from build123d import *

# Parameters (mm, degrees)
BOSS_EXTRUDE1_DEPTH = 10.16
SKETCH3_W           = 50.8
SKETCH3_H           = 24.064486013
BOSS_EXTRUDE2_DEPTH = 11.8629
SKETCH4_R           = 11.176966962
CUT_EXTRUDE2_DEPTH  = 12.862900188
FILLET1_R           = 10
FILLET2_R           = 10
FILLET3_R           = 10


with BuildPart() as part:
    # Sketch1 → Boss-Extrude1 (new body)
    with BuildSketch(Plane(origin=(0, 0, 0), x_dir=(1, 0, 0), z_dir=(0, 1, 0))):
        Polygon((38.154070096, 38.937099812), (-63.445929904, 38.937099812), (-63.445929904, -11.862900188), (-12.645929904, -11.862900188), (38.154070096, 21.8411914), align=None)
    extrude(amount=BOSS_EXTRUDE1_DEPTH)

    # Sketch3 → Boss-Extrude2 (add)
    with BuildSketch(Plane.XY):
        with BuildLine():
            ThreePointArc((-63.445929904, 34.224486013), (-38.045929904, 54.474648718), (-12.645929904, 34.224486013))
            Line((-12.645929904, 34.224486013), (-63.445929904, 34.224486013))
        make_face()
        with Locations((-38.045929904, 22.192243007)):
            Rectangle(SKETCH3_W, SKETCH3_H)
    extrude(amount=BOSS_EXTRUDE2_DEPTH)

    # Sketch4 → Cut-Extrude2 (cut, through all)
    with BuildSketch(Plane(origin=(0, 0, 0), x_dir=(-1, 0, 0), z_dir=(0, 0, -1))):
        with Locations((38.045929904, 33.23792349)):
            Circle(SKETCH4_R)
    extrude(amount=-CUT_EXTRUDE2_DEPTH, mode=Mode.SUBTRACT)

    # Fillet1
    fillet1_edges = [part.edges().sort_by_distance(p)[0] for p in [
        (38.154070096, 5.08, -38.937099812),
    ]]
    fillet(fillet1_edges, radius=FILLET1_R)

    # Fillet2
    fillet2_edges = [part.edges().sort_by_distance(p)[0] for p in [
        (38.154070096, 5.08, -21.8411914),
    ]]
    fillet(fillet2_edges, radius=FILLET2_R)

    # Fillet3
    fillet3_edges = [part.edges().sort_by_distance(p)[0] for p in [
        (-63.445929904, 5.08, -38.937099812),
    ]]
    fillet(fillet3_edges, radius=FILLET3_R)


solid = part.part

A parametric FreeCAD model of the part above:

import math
import FreeCAD as App
import Part
import Sketcher
from FreeCAD import Vector
Q = App.Units.Quantity


def edges_at(feature, points):
    """Names of the edges that pass closest to the given points."""
    edges = feature.Shape.Edges
    near = lambda p: min(range(len(edges)), key=lambda i: edges[i].distToShape(Part.Vertex(*p))[0])
    return sorted({f"Edge{near(p) + 1}" for p in points})

doc = App.newDocument("Part")
body = doc.addObject("PartDesign::Body", "Body")

# Sketch on XZ plane
sketch1 = body.newObject("Sketcher::SketchObject", "Sketch")
sketch1.AttachmentSupport = (doc.getObject("XZ_Plane"), [""])
sketch1.MapMode = "FlatFace"
sketch1.addGeometry([
    Part.LineSegment(Vector(38, -39, 0), Vector(-63, -39, 0)),  # 0
    Part.LineSegment(Vector(-63, -39, 0), Vector(-63, 12, 0)),  # 1
    Part.LineSegment(Vector(-63, 12, 0), Vector(-13, 12, 0)),  # 2
    Part.LineSegment(Vector(-13, 12, 0), Vector(38, -22, 0)),  # 3
    Part.LineSegment(Vector(38, -22, 0), Vector(38, -39, 0)),  # 4
], False)
sketch1.addConstraint([
    Sketcher.Constraint("Coincident", 0, 2, 1, 1),
    Sketcher.Constraint("Coincident", 1, 2, 2, 1),
    Sketcher.Constraint("Coincident", 2, 2, 3, 1),
    Sketcher.Constraint("Coincident", 3, 2, 4, 1),
    Sketcher.Constraint("Coincident", 4, 2, 0, 1),
    Sketcher.Constraint("Horizontal", 0),
    Sketcher.Constraint("Vertical", 1),
    Sketcher.Constraint("Horizontal", 2),
    Sketcher.Constraint("Vertical", 4),
    Sketcher.Constraint("Equal", 2, 1),
    Sketcher.Constraint("DistanceX", 0, 2, 0, 1, Q("4 in")),
    Sketcher.Constraint("DistanceX", 2, 1, 2, 2, Q("2 in")),
    Sketcher.Constraint("DistanceY", 4, 2, 4, 1, 17.095908),
    Sketcher.Constraint("DistanceY", 0, 2, -1, 1, 38.9371),
    Sketcher.Constraint("DistanceX", 0, 2, -1, 1, 63.44593),
])
pad1 = body.newObject("PartDesign::Pad", "Pad")
pad1.Profile = sketch1
pad1.Length = Q("0.4 in")
pad1.Reversed = True

# Sketch on XY plane
sketch2 = body.newObject("Sketcher::SketchObject", "Sketch001")
sketch2.AttachmentSupport = (doc.getObject("XY_Plane"), [""])
sketch2.MapMode = "FlatFace"
sketch2.addGeometry([
    Part.ArcOfCircle(Part.Circle(Vector(-38, 28, 0), Vector(0, 0, 1), 26), math.radians(13), math.radians(167)),
    Part.LineSegment(Vector(-63, 34, 0), Vector(-63, 10, 0)),
    Part.LineSegment(Vector(-63, 10, 0), Vector(-13, 10, 0)),
    Part.LineSegment(Vector(-13, 10, 0), Vector(-13, 34, 0)),
], False)
sketch2.addConstraint([
    Sketcher.Constraint("Coincident", 0, 2, 1, 1),
    Sketcher.Constraint("Coincident", 1, 2, 2, 1),
    Sketcher.Constraint("Coincident", 2, 2, 3, 1),
    Sketcher.Constraint("Coincident", 3, 2, 0, 1),
    Sketcher.Constraint("Vertical", 1),
    Sketcher.Constraint("Horizontal", 2),
    Sketcher.Constraint("Vertical", 3),
    Sketcher.Constraint("Horizontal", 0, 2, 3, 2),
    Sketcher.Constraint("DistanceX", 2, 1, 2, 2, Q("2 in")),
    Sketcher.Constraint("DistanceY", -1, 1, 1, 2, Q("0.4 in")),
    Sketcher.Constraint("Radius", 0, 26.05483),
    Sketcher.Constraint("DistanceY", 1, 2, 1, 1, 24.064486),
    Sketcher.Constraint("DistanceX", 0, 3, -1, 1, 38.04593),
])
pad2 = body.newObject("PartDesign::Pad", "Pad001")
pad2.Profile = sketch2
pad2.Length = 11.8629

# Sketch on XY plane
sketch3 = body.newObject("Sketcher::SketchObject", "Sketch002")
sketch3.AttachmentSupport = (doc.getObject("XY_Plane"), [""])
sketch3.MapMode = "FlatFace"
sketch3.addGeometry(Part.Circle(Vector(-38, 33, 0), Vector(0, 0, 1), 11), False)
sketch3.addConstraint([
    Sketcher.Constraint("Diameter", 0, 22.353934),
    Sketcher.Constraint("DistanceX", 0, 3, -1, 1, 38.04593),
    Sketcher.Constraint("DistanceY", -1, 1, 0, 3, 33.237923),
])
pocket1 = body.newObject("PartDesign::Pocket", "Pocket")
pocket1.Profile = sketch3
pocket1.Type = "ThroughAll"
pocket1.Reversed = True
doc.recompute()

fillet = body.newObject("PartDesign::Fillet", "Fillet")
fillet.Base = (pocket1, edges_at(pocket1, [(38.154, 5.08, -38.937)]))
fillet.Radius = 10
doc.recompute()

fillet2 = body.newObject("PartDesign::Fillet", "Fillet001")
fillet2.Base = (fillet, edges_at(fillet, [(38.154, 5.08, -21.841)]))
fillet2.Radius = 10
doc.recompute()

fillet3 = body.newObject("PartDesign::Fillet", "Fillet002")
fillet3.Base = (fillet2, edges_at(fillet2, [(-63.446, 5.08, -38.937)]))
fillet3.Radius = 10

doc.recompute()
